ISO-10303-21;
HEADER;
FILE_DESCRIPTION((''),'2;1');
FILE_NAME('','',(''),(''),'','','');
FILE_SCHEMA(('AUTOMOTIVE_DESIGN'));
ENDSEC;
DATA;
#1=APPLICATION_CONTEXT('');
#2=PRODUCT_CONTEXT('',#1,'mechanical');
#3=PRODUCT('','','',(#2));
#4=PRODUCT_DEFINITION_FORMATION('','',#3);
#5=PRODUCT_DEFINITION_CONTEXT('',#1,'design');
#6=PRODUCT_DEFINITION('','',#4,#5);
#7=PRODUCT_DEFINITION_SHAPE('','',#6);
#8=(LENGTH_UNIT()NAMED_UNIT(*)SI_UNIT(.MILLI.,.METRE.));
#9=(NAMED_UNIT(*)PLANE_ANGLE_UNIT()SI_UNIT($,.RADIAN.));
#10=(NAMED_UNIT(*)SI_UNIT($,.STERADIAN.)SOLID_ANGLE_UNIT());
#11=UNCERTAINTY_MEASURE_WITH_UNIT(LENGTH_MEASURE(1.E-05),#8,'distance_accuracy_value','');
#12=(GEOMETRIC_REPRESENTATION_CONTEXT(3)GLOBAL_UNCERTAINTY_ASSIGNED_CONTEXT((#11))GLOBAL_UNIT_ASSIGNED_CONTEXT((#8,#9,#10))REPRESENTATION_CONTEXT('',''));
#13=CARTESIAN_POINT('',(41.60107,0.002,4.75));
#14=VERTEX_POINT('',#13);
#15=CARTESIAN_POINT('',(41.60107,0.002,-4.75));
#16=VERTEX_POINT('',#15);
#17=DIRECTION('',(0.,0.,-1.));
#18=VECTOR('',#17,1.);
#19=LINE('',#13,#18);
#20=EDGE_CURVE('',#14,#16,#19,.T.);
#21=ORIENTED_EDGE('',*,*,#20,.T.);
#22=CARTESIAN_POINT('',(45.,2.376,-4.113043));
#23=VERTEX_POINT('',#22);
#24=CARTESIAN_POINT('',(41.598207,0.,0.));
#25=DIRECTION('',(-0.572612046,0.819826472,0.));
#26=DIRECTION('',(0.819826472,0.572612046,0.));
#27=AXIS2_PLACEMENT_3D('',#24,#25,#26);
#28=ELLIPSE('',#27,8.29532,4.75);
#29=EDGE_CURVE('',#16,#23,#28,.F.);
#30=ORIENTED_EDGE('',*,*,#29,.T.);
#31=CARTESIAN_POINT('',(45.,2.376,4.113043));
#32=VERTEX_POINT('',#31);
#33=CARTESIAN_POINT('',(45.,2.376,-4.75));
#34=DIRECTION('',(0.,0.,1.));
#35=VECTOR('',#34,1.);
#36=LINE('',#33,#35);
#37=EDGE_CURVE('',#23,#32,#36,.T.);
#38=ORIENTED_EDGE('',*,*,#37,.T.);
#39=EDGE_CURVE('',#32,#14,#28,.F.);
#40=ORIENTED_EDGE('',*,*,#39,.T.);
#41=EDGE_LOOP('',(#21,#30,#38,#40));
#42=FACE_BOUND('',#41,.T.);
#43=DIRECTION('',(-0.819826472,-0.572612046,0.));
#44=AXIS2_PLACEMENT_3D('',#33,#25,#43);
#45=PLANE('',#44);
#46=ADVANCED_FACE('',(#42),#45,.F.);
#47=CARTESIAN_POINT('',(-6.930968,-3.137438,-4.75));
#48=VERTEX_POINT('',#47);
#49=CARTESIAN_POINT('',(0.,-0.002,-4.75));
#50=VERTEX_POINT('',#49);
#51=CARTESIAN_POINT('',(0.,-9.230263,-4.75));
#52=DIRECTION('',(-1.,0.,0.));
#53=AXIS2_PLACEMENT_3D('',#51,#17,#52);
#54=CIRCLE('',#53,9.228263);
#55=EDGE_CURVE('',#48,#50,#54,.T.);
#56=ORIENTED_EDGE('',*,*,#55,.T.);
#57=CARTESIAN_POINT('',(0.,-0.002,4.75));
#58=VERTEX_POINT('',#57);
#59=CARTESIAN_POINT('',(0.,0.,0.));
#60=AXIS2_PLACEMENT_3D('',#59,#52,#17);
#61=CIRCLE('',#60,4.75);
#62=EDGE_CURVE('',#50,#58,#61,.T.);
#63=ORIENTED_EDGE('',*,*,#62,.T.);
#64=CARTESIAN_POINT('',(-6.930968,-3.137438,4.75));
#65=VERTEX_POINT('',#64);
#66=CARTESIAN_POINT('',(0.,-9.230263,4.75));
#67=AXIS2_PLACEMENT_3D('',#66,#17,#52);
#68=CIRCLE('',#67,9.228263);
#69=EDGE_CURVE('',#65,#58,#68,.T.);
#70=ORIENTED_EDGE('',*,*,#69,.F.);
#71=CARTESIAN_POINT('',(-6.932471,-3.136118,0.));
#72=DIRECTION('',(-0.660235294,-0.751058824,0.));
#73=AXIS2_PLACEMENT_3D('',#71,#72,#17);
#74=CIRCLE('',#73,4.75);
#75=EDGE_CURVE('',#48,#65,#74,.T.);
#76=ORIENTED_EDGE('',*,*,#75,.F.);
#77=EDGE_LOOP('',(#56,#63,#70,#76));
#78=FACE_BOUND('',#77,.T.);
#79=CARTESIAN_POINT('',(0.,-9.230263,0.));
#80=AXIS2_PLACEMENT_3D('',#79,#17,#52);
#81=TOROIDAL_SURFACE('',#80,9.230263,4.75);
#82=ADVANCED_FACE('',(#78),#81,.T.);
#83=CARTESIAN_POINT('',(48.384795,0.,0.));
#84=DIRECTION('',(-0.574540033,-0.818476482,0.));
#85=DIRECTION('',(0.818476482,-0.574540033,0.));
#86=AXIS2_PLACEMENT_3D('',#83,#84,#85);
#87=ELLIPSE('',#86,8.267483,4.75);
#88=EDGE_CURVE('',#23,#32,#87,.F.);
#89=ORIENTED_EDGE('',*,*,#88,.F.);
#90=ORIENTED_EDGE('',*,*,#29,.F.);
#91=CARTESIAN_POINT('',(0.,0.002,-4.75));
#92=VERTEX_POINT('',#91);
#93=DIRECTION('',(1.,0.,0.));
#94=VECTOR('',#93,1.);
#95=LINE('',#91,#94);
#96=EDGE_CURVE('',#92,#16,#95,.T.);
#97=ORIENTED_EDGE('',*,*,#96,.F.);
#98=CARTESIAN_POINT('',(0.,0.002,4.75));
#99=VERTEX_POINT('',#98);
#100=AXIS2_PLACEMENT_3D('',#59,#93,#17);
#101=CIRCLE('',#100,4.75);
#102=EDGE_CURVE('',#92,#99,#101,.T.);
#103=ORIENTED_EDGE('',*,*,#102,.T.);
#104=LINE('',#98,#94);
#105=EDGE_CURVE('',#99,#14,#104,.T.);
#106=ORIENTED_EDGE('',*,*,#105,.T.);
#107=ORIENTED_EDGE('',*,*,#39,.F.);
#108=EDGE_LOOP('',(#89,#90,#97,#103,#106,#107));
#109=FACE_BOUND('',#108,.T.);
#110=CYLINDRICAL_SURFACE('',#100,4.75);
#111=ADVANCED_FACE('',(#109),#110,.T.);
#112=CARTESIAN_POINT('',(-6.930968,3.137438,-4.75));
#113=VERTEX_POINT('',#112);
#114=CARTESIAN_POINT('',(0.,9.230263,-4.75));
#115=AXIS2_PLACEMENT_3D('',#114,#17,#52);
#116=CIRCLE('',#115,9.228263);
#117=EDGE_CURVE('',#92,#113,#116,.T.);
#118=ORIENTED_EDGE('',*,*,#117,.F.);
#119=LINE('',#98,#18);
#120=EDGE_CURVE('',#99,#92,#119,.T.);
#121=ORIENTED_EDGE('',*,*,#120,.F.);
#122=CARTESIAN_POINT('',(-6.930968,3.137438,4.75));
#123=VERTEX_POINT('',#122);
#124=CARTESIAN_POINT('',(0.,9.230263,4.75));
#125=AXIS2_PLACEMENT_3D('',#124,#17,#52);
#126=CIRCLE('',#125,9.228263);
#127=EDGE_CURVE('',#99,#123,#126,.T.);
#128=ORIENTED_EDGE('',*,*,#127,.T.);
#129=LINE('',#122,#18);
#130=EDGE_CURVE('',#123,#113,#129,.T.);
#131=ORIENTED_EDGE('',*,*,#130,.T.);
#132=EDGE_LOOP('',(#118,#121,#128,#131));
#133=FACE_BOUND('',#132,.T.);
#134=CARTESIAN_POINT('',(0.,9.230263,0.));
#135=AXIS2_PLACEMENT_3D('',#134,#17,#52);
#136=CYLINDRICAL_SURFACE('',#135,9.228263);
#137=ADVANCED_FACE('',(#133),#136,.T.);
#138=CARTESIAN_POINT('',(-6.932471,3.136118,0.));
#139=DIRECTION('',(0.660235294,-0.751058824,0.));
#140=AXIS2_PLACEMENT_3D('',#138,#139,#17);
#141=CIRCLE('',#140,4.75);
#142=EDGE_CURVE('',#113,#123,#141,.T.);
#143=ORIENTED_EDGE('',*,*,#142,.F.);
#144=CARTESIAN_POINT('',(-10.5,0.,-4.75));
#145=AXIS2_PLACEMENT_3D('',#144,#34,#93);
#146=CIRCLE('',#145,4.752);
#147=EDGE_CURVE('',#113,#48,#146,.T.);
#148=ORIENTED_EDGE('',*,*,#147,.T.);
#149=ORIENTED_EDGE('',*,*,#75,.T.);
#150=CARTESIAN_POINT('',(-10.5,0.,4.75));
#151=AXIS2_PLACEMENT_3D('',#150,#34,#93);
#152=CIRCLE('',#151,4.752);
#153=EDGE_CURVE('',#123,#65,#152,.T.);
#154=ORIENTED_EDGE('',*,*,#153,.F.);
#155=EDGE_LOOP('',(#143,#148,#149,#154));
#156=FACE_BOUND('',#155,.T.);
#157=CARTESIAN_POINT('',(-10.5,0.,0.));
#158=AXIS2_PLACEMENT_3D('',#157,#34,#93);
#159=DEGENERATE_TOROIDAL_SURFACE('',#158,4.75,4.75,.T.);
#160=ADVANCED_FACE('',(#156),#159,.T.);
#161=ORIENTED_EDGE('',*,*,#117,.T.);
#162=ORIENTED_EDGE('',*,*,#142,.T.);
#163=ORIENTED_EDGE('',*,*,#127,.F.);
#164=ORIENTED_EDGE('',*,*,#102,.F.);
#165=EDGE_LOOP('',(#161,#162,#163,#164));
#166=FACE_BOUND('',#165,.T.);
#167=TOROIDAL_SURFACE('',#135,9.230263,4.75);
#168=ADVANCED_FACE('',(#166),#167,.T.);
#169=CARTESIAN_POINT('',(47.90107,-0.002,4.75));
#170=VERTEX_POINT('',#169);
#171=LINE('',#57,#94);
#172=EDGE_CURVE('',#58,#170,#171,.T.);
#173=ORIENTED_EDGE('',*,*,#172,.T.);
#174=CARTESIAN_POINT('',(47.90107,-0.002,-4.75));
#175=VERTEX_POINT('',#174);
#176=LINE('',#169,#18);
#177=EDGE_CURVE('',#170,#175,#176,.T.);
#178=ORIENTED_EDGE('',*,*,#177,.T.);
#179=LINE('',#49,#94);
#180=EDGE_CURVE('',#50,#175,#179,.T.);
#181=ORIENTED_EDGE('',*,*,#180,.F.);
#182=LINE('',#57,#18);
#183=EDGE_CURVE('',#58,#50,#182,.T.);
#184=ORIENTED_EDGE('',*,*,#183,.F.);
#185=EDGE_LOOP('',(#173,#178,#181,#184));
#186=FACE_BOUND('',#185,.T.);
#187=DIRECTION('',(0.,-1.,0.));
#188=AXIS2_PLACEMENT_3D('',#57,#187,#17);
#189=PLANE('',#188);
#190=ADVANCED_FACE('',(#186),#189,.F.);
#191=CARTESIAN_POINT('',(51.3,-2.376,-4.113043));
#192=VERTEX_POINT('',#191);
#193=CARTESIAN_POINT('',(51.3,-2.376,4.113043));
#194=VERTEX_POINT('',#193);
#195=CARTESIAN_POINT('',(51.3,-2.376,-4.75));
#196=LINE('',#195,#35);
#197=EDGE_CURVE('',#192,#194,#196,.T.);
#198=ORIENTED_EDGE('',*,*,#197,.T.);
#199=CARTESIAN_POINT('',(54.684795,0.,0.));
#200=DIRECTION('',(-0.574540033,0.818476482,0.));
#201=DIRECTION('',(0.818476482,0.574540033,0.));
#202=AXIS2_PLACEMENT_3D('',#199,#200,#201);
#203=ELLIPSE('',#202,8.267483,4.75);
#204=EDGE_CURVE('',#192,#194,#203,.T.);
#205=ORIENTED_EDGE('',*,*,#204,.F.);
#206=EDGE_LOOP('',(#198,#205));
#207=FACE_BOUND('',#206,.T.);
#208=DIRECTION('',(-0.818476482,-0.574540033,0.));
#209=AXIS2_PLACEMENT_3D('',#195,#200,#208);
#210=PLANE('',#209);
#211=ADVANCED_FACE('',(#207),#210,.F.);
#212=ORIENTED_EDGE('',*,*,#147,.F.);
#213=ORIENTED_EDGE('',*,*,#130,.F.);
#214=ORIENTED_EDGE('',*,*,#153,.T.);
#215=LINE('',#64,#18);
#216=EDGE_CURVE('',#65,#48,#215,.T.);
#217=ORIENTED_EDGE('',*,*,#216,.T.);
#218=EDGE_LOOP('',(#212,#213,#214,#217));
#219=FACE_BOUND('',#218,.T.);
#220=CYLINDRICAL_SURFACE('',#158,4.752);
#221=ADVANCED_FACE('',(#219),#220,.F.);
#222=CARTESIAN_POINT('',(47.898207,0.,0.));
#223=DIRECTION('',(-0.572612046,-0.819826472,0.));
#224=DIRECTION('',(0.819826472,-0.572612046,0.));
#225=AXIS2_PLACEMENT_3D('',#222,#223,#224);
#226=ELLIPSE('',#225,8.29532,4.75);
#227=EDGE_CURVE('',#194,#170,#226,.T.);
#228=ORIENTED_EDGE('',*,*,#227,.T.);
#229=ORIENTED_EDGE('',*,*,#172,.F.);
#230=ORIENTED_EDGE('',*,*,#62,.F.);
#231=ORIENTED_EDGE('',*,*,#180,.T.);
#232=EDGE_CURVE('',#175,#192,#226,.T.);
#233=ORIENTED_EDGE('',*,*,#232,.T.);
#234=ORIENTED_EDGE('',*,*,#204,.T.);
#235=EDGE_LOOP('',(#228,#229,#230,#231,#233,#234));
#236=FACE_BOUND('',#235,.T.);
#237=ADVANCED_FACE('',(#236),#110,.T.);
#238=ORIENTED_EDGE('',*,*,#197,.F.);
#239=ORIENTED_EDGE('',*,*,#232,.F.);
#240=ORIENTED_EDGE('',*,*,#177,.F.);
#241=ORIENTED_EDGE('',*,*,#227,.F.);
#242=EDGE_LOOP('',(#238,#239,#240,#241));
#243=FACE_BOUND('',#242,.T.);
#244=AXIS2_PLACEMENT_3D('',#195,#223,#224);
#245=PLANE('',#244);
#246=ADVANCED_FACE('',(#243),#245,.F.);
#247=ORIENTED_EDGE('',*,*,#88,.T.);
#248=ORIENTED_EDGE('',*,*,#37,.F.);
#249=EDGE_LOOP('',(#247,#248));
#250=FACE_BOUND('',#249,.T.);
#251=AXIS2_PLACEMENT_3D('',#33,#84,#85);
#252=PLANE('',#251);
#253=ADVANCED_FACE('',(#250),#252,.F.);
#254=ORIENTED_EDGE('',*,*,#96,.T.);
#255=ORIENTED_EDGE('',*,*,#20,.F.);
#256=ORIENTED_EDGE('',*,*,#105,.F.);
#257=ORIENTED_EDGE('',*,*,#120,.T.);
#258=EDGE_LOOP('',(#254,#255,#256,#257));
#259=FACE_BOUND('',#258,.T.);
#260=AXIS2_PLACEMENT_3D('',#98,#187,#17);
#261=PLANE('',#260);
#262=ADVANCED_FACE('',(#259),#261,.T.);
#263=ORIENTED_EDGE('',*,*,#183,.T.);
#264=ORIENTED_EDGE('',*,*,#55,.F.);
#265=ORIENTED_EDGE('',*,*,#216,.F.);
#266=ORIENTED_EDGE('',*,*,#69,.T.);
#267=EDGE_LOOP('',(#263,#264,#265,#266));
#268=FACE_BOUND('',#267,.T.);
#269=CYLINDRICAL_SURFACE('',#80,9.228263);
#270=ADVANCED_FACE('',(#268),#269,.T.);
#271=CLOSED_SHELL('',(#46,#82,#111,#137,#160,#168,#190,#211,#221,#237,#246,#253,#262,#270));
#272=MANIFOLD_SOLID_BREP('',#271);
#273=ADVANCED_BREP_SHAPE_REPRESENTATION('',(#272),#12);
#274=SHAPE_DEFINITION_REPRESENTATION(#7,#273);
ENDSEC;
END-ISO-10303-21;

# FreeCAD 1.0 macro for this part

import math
import FreeCAD as App
import Part
import Sketcher

V = App.Vector


def add_polygon(sketch, points):
    """Adds a closed chain of lines whose ends are joined by coincident constraints."""
    first, n = sketch.GeometryCount, len(points)
    for a, b in zip(points, points[1:] + points[:1]):
        sketch.addGeometry(Part.LineSegment(App.Vector(*a, 0), App.Vector(*b, 0)), False)
    for i in range(n):
        sketch.addConstraint(Sketcher.Constraint("Coincident", first + i, 2, first + (i + 1) % n, 1))

doc = App.newDocument("Part")
body = doc.addObject("PartDesign::Body", "Body")

sketch1 = body.newObject("Sketcher::SketchObject", "Sketch")
sketch1.AttachmentSupport = (doc.getObject("YZ_Plane"), [""])
sketch1.MapMode = "FlatFace"
sketch1.AttachmentOffset = App.Placement(V(0, 0, 45), App.Rotation())
sketch1.addGeometry([
    Part.LineSegment(V(0, 4.7, 0), V(0, -4.7, 0)),
    Part.ArcOfCircle(Part.Circle(V(0, 0, 0), V(0, 0, 1), 4.8), math.radians(-90), math.radians(90)),
], False)
sketch1.addConstraint([
    Sketcher.Constraint("Coincident", 0, 1, 1, 2),
    Sketcher.Constraint("Coincident", 1, 1, 0, 2),
    Sketcher.Constraint("Vertical", 0),
    Sketcher.Constraint("Coincident", 1, 3, -1, 1),
    Sketcher.Constraint("Radius", 1, 4.75),
    Sketcher.Constraint("DistanceX", -1, 1, 0, 1, 0.002),
])

sketch2 = body.newObject("Sketcher::SketchObject", "Sketch001")
sketch2.AttachmentSupport = (doc.getObject("XY_Plane"), [""])
sketch2.MapMode = "FlatFace"
sketch2.addGeometry([
    Part.LineSegment(V(45, 4.8, 0), V(0, 4.8, 0)),
    Part.ArcOfCircle(Part.Circle(V(0, 9.2, 0), V(0, 0, 1), 4.5), math.radians(-139), math.radians(-90)),
    Part.ArcOfCircle(Part.Circle(V(-10.5, 0, 0), V(0, 0, 1), 9.5), math.radians(41), math.radians(319)),
    Part.ArcOfCircle(Part.Circle(V(0, -9.2, 0), V(0, 0, 1), 4.5), math.radians(90), math.radians(139)),
    Part.LineSegment(V(0, -4.8, 0), V(51.3, -4.8, 0)),
], False)
sketch2.addConstraint([
    Sketcher.Constraint("Tangent", 0, 2, 1, 2),
    Sketcher.Constraint("Tangent", 1, 1, 2, 1),
    Sketcher.Constraint("Tangent", 2, 2, 3, 2),
    Sketcher.Constraint("Tangent", 3, 1, 4, 1),
    Sketcher.Constraint("Horizontal", 0),
    Sketcher.Constraint("Horizontal", 4),
    Sketcher.Constraint("Equal", 1, 3),
    Sketcher.Constraint("Symmetric", 1, 3, 3, 3, -1, 1),
    Sketcher.Constraint("PointOnObject", 1, 3, -2),
    Sketcher.Constraint("Radius", 2, 9.5),
    Sketcher.Constraint("DistanceX", 0, 2, 0, 1, 45.0),
    Sketcher.Constraint("DistanceX", 4, 1, 4, 2, 51.3),
    Sketcher.Constraint("DistanceX", 2, 3, -1, 1, 10.5),
    Sketcher.Constraint("DistanceY", 3, 1, 0, 2, 9.5),
])
doc.recompute()

additivepipe = body.newObject("PartDesign::AdditivePipe", "AdditivePipe")
additivepipe.Profile = sketch1
additivepipe.Spine = (sketch2, ["Edge1", "Edge2", "Edge3", "Edge4", "Edge5"])

sketch3 = body.newObject("Sketcher::SketchObject", "Sketch002")
sketch3.AttachmentSupport = (doc.getObject("XY_Plane"), [""])
sketch3.MapMode = "FlatFace"
add_polygon(sketch3, [(41.6, 4.8), (45, 2.4), (41.6, 0), (47.9, 0), (51.3, -2.4), (47.9, -4.8), (51.3, -4.8), (51.3, 4.8)])
sketch3.addConstraint([
    Sketcher.Constraint("Horizontal", 2),
    Sketcher.Constraint("Horizontal", 5),
    Sketcher.Constraint("Vertical", 6),
    Sketcher.Constraint("Horizontal", 7),
    Sketcher.Constraint("PointOnObject", 1, 2, -1),
    Sketcher.Constraint("Equal", 0, 1),
    Sketcher.Constraint("Equal", 1, 3),
    Sketcher.Constraint("Equal", 3, 4),
    Sketcher.Constraint("DistanceX", 2, 1, 2, 2, 6.3),
    Sketcher.Constraint("DistanceX", -1, 1, 0, 2, 45.0),
    Sketcher.Constraint("DistanceY", 6, 1, 6, 2, 9.52),
    Sketcher.Constraint("DistanceX", -1, 1, 3, 2, 51.3),
    Sketcher.Constraint("DistanceX", 7, 2, 4, 2, 6.3),
    Sketcher.Constraint("DistanceX", -1, 1, 5, 2, 51.31),
    Sketcher.Constraint("DistanceY", -1, 1, 0, 2, 2.376),
    Sketcher.Constraint("DistanceX", 5, 1, 5, 2, 3.406191),
])
pocket1 = body.newObject("PartDesign::Pocket", "Pocket")
pocket1.Profile = sketch3
pocket1.Type = "ThroughAll"
pocket1.Midplane = True

doc.recompute()
